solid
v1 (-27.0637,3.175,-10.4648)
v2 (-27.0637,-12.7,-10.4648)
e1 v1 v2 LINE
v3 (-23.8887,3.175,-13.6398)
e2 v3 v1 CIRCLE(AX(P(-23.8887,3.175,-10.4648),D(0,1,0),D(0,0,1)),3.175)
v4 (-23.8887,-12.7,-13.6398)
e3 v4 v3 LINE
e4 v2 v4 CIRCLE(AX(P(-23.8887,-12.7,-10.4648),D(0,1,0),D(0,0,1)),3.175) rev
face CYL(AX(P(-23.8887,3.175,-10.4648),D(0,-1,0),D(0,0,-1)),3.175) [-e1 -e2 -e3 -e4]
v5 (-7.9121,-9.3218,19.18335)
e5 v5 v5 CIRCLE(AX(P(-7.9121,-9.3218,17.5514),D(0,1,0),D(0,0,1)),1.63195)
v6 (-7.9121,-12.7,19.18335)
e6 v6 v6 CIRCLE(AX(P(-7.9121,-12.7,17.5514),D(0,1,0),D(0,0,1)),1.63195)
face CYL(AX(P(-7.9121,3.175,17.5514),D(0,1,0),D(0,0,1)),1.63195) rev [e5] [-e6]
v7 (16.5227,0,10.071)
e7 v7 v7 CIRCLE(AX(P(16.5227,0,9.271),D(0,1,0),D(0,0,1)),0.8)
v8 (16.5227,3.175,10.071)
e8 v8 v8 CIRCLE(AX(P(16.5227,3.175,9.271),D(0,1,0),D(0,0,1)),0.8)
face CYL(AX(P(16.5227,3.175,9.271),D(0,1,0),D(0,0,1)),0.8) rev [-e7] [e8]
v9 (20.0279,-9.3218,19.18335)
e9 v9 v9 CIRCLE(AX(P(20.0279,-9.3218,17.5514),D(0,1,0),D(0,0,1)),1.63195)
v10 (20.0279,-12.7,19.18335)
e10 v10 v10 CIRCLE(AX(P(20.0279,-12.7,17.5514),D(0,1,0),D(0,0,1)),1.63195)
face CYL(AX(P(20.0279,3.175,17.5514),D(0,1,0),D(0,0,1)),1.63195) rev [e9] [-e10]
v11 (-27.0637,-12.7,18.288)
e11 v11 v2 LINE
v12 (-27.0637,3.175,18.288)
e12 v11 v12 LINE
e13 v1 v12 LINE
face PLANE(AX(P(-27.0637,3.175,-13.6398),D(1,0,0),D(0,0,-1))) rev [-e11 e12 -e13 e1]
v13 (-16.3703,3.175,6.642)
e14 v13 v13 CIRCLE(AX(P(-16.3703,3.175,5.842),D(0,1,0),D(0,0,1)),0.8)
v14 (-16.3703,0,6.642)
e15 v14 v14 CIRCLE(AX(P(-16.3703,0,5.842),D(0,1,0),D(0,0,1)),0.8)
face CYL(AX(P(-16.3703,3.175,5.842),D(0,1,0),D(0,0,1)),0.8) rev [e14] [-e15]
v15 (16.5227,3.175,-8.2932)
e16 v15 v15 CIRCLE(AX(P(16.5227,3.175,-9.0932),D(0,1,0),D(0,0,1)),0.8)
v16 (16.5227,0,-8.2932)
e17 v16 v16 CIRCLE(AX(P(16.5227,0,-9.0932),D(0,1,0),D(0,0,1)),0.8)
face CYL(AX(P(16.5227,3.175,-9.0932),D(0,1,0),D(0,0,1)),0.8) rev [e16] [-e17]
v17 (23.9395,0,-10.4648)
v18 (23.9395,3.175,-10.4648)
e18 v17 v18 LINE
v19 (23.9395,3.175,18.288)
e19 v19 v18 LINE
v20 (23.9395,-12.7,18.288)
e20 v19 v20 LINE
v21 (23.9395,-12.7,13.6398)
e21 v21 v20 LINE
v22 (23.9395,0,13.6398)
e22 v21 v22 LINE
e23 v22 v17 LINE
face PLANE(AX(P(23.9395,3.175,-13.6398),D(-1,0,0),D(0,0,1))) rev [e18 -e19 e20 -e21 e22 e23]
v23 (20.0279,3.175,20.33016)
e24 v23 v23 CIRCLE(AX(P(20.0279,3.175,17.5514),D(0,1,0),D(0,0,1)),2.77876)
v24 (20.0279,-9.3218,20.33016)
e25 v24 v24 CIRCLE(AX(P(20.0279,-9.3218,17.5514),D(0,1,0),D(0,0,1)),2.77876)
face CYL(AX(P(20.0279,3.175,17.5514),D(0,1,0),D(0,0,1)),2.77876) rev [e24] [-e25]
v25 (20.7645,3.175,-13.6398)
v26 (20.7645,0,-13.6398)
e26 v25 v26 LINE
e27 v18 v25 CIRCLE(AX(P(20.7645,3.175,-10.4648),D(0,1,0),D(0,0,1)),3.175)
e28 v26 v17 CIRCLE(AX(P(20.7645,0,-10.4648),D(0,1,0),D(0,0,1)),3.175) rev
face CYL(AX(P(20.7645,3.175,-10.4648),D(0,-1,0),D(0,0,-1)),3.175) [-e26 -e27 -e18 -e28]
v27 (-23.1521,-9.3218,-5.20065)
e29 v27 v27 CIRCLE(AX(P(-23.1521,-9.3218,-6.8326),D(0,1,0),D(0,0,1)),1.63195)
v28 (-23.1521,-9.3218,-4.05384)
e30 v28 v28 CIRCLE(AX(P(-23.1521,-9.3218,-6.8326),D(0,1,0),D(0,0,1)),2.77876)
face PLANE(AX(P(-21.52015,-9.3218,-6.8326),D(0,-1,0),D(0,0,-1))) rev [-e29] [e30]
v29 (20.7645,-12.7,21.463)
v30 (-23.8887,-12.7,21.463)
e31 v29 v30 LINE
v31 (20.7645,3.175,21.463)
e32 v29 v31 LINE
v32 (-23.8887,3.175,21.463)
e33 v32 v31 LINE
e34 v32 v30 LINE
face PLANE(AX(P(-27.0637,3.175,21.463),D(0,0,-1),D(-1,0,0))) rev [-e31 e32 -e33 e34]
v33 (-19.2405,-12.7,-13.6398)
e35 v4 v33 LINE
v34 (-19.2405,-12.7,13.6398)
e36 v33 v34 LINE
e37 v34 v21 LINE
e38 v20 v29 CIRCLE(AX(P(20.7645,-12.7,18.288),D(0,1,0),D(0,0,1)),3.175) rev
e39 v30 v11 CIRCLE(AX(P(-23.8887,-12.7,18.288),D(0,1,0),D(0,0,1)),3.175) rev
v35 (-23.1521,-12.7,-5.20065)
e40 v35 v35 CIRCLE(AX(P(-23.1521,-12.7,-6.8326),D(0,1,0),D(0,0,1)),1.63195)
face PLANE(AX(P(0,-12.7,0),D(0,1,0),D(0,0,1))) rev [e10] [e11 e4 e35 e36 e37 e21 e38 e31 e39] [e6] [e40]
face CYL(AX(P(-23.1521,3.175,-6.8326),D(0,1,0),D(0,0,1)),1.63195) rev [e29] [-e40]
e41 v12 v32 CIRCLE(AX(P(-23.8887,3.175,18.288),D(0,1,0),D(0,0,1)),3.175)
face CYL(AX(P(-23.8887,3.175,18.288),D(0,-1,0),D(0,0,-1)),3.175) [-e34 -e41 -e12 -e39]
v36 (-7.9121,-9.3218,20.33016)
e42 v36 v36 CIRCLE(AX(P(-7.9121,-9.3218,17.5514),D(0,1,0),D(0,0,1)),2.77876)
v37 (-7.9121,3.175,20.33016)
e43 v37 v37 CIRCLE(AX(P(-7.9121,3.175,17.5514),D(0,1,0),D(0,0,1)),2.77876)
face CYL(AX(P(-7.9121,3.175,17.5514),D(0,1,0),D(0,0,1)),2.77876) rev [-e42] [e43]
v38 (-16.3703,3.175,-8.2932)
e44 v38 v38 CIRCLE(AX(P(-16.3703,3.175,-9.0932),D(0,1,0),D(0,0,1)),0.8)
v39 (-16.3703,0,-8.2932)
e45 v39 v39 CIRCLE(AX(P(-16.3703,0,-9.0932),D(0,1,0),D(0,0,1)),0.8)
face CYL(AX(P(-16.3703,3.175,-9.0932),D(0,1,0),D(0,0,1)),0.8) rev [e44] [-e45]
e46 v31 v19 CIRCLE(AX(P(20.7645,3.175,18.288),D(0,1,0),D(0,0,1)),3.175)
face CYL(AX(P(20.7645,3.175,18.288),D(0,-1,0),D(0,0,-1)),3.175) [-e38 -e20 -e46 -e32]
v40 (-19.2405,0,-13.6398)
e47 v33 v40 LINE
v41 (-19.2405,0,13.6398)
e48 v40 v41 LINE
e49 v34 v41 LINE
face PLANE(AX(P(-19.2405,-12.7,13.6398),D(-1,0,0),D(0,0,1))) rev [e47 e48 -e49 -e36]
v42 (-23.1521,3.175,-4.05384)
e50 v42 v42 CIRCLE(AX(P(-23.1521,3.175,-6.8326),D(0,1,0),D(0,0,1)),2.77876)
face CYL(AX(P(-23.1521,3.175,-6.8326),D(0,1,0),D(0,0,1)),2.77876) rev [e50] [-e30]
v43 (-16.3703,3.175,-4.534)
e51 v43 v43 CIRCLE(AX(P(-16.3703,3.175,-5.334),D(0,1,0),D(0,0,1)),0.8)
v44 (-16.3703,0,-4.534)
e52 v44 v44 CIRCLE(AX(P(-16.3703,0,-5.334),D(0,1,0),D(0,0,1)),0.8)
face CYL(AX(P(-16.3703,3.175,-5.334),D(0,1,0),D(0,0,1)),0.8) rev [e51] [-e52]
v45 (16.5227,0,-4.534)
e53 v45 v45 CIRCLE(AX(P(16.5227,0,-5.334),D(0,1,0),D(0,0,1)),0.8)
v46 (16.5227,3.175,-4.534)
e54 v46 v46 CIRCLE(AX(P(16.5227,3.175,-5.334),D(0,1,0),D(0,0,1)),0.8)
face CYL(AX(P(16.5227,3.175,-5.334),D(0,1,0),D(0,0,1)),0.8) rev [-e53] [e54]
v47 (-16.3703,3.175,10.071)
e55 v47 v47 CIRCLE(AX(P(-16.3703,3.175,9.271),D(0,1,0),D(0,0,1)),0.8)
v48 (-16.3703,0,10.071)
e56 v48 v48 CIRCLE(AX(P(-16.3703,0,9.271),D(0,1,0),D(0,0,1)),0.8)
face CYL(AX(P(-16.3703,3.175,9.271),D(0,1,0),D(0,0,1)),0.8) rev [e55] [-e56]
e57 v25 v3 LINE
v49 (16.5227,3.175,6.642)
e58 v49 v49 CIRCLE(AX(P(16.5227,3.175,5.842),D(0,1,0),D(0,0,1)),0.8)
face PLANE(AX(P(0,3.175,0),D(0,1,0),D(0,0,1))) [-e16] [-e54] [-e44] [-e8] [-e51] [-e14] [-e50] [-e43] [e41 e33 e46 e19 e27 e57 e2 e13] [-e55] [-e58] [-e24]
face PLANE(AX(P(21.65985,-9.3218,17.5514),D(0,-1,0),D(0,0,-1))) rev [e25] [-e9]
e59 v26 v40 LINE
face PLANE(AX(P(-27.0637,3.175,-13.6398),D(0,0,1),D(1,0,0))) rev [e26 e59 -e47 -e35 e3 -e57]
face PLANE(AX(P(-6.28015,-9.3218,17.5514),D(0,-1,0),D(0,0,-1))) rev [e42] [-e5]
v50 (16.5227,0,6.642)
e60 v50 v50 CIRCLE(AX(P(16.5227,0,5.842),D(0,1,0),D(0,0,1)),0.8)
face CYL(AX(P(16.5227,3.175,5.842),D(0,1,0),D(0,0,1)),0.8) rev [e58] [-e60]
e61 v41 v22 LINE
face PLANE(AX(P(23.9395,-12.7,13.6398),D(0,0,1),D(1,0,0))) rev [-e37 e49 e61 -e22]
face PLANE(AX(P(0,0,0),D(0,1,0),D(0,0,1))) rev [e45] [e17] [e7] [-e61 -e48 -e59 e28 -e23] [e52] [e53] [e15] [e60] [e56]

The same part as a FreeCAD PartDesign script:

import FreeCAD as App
import Part
import Sketcher
from FreeCAD import Vector
Q = App.Units.Quantity


def edges_at(feature, points):
    """Names of the edges that pass closest to the given points."""
    edges = feature.Shape.Edges
    near = lambda p: min(range(len(edges)), key=lambda i: edges[i].distToShape(Part.Vertex(*p))[0])
    return sorted({f"Edge{near(p) + 1}" for p in points})


def add_polygon(sketch, points):
    """Adds a closed chain of lines whose ends are joined by coincident constraints."""
    first, n = sketch.GeometryCount, len(points)
    for a, b in zip(points, points[1:] + points[:1]):
        sketch.addGeometry(Part.LineSegment(App.Vector(*a, 0), App.Vector(*b, 0)), False)
    for i in range(n):
        sketch.addConstraint(Sketcher.Constraint("Coincident", first + i, 2, first + (i + 1) % n, 1))

doc = App.newDocument("Part")
body = doc.addObject("PartDesign::Body", "Body")

sketch1 = body.newObject("Sketcher::SketchObject", "Sketch")
sketch1.AttachmentSupport = (doc.getObject("XZ_Plane"), [""])
sketch1.MapMode = "FlatFace"
add_polygon(sketch1, [(-27, -14), (-27, 21), (24, 21), (24, -14)])
sketch1.addConstraint(Sketcher.Constraint("Vertical", 0))
sketch1.addConstraint(Sketcher.Constraint("Horizontal", 1))
sketch1.addConstraint(Sketcher.Constraint("Vertical", 2))
sketch1.addConstraint(Sketcher.Constraint("Horizontal", 3))
sketch1.addConstraint(Sketcher.Constraint("DistanceX", 1, 1, 1, 2, Q("2.008 in")))
sketch1.addConstraint(Sketcher.Constraint("DistanceY", 0, 1, 0, 2, Q("1.382 in")))
sketch1.addConstraint(Sketcher.Constraint("DistanceY", -1, 1, 0, 2, Q("0.845 in")))
sketch1.addConstraint(Sketcher.Constraint("DistanceX", 0, 2, -1, 1, Q("1.0655 in")))
pad1 = body.newObject("PartDesign::Pad", "Pad")
pad1.Profile = sketch1
pad1.Length = Q("0.125 in")
pad1.Reversed = True

sketch2 = body.newObject("Sketcher::SketchObject", "Sketch001")
sketch2.AttachmentSupport = (doc.getObject("XZ_Plane"), [""])
sketch2.MapMode = "FlatFace"
add_polygon(sketch2, [(-27, 21), (-27, -14), (-19, -14), (-19, 14), (24, 14), (24, 21)])
sketch2.addConstraint(Sketcher.Constraint("Vertical", 0))
sketch2.addConstraint(Sketcher.Constraint("Horizontal", 1))
sketch2.addConstraint(Sketcher.Constraint("Vertical", 2))
sketch2.addConstraint(Sketcher.Constraint("Horizontal", 3))
sketch2.addConstraint(Sketcher.Constraint("Vertical", 4))
sketch2.addConstraint(Sketcher.Constraint("Horizontal", 5))
sketch2.addConstraint(Sketcher.Constraint("Equal", 1, 4))
sketch2.addConstraint(Sketcher.Constraint("DistanceX", 3, 1, 3, 2, Q("1.7 in")))
sketch2.addConstraint(Sketcher.Constraint("DistanceX", 1, 1, 1, 2, Q("0.308 in")))
sketch2.addConstraint(Sketcher.Constraint("DistanceY", 0, 2, 0, 1, Q("1.382 in")))
sketch2.addConstraint(Sketcher.Constraint("DistanceY", 0, 2, -1, 1, Q("0.537 in")))
sketch2.addConstraint(Sketcher.Constraint("DistanceX", 0, 2, -1, 1, Q("1.0655 in")))
pad2 = body.newObject("PartDesign::Pad", "Pad001")
pad2.Profile = sketch2
pad2.Length = Q("0.5 in")

sketch3 = body.newObject("Sketcher::SketchObject", "Sketch002")
sketch3.AttachmentSupport = (doc.getObject("XZ_Plane"), [""])
sketch3.MapMode = "FlatFace"
sketch3.AttachmentOffset = App.Placement(Vector(0, 0, -0.125 * 25.4), App.Rotation())
sketch3.addGeometry(Part.Circle(Vector(-16.4, -9.1, 0), Vector(0, 0, 1), 0.8), False)
sketch3.addGeometry(Part.Circle(Vector(-16.4, -5.3, 0), Vector(0, 0, 1), 0.8), False)
sketch3.addGeometry(Part.Circle(Vector(-16.4, 5.8, 0), Vector(0, 0, 1), 0.8), False)
sketch3.addGeometry(Part.Circle(Vector(-16.4, 9.3, 0), Vector(0, 0, 1), 0.8), False)
sketch3.addGeometry(Part.Circle(Vector(16.5, 9.3, 0), Vector(0, 0, 1), 0.8), False)
sketch3.addGeometry(Part.Circle(Vector(16.5, 5.8, 0), Vector(0, 0, 1), 0.8), False)
sketch3.addGeometry(Part.Circle(Vector(16.5, -5.3, 0), Vector(0, 0, 1), 0.8), False)
sketch3.addGeometry(Part.Circle(Vector(16.5, -9.1, 0), Vector(0, 0, 1), 0.8), False)
sketch3.addConstraint(Sketcher.Constraint("Equal", 0, 1))
sketch3.addConstraint(Sketcher.Constraint("Equal", 1, 2))
sketch3.addConstraint(Sketcher.Constraint("Equal", 2, 3))
sketch3.addConstraint(Sketcher.Constraint("Equal", 3, 4))
sketch3.addConstraint(Sketcher.Constraint("Equal", 4, 5))
sketch3.addConstraint(Sketcher.Constraint("Equal", 5, 6))
sketch3.addConstraint(Sketcher.Constraint("Equal", 6, 7))
sketch3.addConstraint(Sketcher.Constraint("Horizontal", 3, 3, 4, 3))
sketch3.addConstraint(Sketcher.Constraint("Horizontal", 2, 3, 5, 3))
sketch3.addConstraint(Sketcher.Constraint("Horizontal", 1, 3, 6, 3))
sketch3.addConstraint(Sketcher.Constraint("Horizontal", 0, 3, 7, 3))
sketch3.addConstraint(Sketcher.Constraint("Vertical", 0, 3, 1, 3))
sketch3.addConstraint(Sketcher.Constraint("Vertical", 1, 3, 2, 3))
sketch3.addConstraint(Sketcher.Constraint("Vertical", 2, 3, 3, 3))
sketch3.addConstraint(Sketcher.Constraint("Vertical", 4, 3, 5, 3))
sketch3.addConstraint(Sketcher.Constraint("Vertical", 5, 3, 6, 3))
sketch3.addConstraint(Sketcher.Constraint("Vertical", 6, 3, 7, 3))
sketch3.addConstraint(Sketcher.Constraint("Diameter", 0, Q("1.6 mm")))
sketch3.addConstraint(Sketcher.Constraint("DistanceY", 1, 3, -1, 1, Q("0.21 in")))
sketch3.addConstraint(Sketcher.Constraint("DistanceY", -1, 1, 2, 3, Q("0.23 in")))
sketch3.addConstraint(Sketcher.Constraint("DistanceY", 0, 3, -1, 1, Q("0.358 in")))
sketch3.addConstraint(Sketcher.Constraint("DistanceY", -1, 1, 3, 3, Q("0.365 in")))
sketch3.addConstraint(Sketcher.Constraint("DistanceX", 3, 3, 4, 3, Q("1.295 in")))
sketch3.addConstraint(Sketcher.Constraint("DistanceX", 0, 3, -1, 1, Q("0.6445 in")))
doc.recompute()
hole = body.newObject("PartDesign::Hole", "Hole")
hole.Profile = sketch3
hole.ThreadType = "None"
hole.Diameter = 1.6
hole.DepthType = "ThroughAll"
hole.Reversed = True

sketch4 = body.newObject("Sketcher::SketchObject", "Sketch003")
sketch4.AttachmentSupport = (doc.getObject("XZ_Plane"), [""])
sketch4.MapMode = "FlatFace"
sketch4.AttachmentOffset = App.Placement(Vector(0, 0, -0.125 * 25.4), App.Rotation())
sketch4.addGeometry(Part.Circle(Vector(-23.2, -6.8, 0), Vector(0, 0, 1), 1.6), False)
sketch4.addGeometry(Part.Circle(Vector(-7.9, 17.6, 0), Vector(0, 0, 1), 1.6), False)
sketch4.addGeometry(Part.Circle(Vector(20, 17.6, 0), Vector(0, 0, 1), 1.6), False)
sketch4.addConstraint(Sketcher.Constraint("Equal", 0, 1))
sketch4.addConstraint(Sketcher.Constraint("Equal", 1, 2))
sketch4.addConstraint(Sketcher.Constraint("Horizontal", 1, 3, 2, 3))
sketch4.addConstraint(Sketcher.Constraint("Diameter", 0, Q("0.1285 in")))
sketch4.addConstraint(Sketcher.Constraint("DistanceX", 0, 3, 1, 3, Q("0.6 in")))
sketch4.addConstraint(Sketcher.Constraint("DistanceX", 1, 3, 2, 3, Q("1.1 in")))
sketch4.addConstraint(Sketcher.Constraint("DistanceY", 0, 3, 1, 3, Q("0.96 in")))
sketch4.addConstraint(Sketcher.Constraint("DistanceY", 0, 3, -1, 1, Q("0.269 in")))
sketch4.addConstraint(Sketcher.Constraint("DistanceX", 0, 3, -1, 1, Q("0.9115 in")))
doc.recompute()
hole2 = body.newObject("PartDesign::Hole", "Hole001")
hole2.Profile = sketch4
hole2.ThreadType = "None"
hole2.Diameter = Q("0.1285 in")
hole2.DepthType = "ThroughAll"
hole2.HoleCutType = "Counterbore"
hole2.HoleCutDiameter = Q("0.2188 in")
hole2.HoleCutDepth = Q("0.492 in")
hole2.Reversed = True
doc.recompute()

fillet = body.newObject("PartDesign::Fillet", "Fillet")
fillet.Base = (hole2, edges_at(hole2, [
    (23.939, -4.763, 21.463),
    (23.939, 1.587, -13.64),
    (-27.064, -4.763, -13.64),
    (-27.064, -4.763, 21.463),
]))
fillet.Radius = Q("0.125 in")

doc.recompute()
